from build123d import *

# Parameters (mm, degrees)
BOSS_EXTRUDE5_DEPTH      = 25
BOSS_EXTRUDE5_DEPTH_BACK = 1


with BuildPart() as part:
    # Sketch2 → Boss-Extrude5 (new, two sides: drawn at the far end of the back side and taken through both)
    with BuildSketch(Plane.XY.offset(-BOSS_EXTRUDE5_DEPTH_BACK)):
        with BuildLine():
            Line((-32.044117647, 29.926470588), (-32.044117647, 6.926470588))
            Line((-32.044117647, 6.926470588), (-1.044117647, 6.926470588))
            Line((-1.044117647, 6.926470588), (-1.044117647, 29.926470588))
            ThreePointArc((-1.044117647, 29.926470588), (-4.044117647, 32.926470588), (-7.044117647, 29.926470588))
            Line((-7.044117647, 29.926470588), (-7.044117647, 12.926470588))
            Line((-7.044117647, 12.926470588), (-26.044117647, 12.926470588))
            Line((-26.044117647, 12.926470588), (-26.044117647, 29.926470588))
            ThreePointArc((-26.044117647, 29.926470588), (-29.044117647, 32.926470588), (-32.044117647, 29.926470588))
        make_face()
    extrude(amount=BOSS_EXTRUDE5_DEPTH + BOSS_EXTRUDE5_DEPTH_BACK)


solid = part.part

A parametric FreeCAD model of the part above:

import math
import FreeCAD as App
import Part
import Sketcher
from FreeCAD import Vector

doc = App.newDocument("Part")
body = doc.addObject("PartDesign::Body", "Body")

sketch1 = body.newObject("Sketcher::SketchObject", "Sketch")
sketch1.AttachmentSupport = (doc.getObject("XY_Plane"), [""])
sketch1.MapMode = "FlatFace"
sketch1.addGeometry([
    Part.LineSegment(Vector(-32, 29.9, 0), Vector(-32, 6.9, 0)),
    Part.LineSegment(Vector(-32, 6.9, 0), Vector(-1, 6.9, 0)),
    Part.LineSegment(Vector(-1, 6.9, 0), Vector(-1, 29.9, 0)),
    Part.ArcOfCircle(Part.Circle(Vector(-4, 29.9, 0), Vector(0, 0, 1), 3), math.radians(0), math.radians(180)),
    Part.LineSegment(Vector(-7, 29.9, 0), Vector(-7, 12.9, 0)),
    Part.LineSegment(Vector(-7, 12.9, 0), Vector(-26, 12.9, 0)),
    Part.LineSegment(Vector(-26, 12.9, 0), Vector(-26, 29.9, 0)),
    Part.ArcOfCircle(Part.Circle(Vector(-29, 29.9, 0), Vector(0, 0, 1), 3), math.radians(0), math.radians(180)),
], False)
sketch1.addConstraint([
    Sketcher.Constraint("Coincident", 0, 2, 1, 1),
    Sketcher.Constraint("Coincident", 1, 2, 2, 1),
    Sketcher.Constraint("Tangent", 2, 2, 3, 1),
    Sketcher.Constraint("Tangent", 3, 2, 4, 1),
    Sketcher.Constraint("Coincident", 4, 2, 5, 1),
    Sketcher.Constraint("Coincident", 5, 2, 6, 1),
    Sketcher.Constraint("Tangent", 6, 2, 7, 1),
    Sketcher.Constraint("Tangent", 7, 2, 0, 1),
    Sketcher.Constraint("Vertical", 0),
    Sketcher.Constraint("Horizontal", 1),
    Sketcher.Constraint("Vertical", 2),
    Sketcher.Constraint("Vertical", 4),
    Sketcher.Constraint("Horizontal", 5),
    Sketcher.Constraint("Vertical", 6),
    Sketcher.Constraint("Equal", 3, 7),
    Sketcher.Constraint("Horizontal", 3, 3, 7, 3),
    Sketcher.Constraint("Radius", 3, 3.0),
    Sketcher.Constraint("DistanceX", 1, 1, 1, 2, 31.0),
    Sketcher.Constraint("DistanceY", 0, 2, 0, 1, 23.0),
    Sketcher.Constraint("DistanceY", 4, 2, 4, 1, 17.0),
    Sketcher.Constraint("DistanceY", -1, 1, 3, 3, 29.926471),
    Sketcher.Constraint("DistanceX", 3, 3, -1, 1, 4.044118),
])
pad1 = body.newObject("PartDesign::Pad", "Pad")
pad1.Profile = sketch1
pad1.Type = "TwoLengths"
pad1.Length = 25
pad1.Length2 = 1

doc.recompute()
